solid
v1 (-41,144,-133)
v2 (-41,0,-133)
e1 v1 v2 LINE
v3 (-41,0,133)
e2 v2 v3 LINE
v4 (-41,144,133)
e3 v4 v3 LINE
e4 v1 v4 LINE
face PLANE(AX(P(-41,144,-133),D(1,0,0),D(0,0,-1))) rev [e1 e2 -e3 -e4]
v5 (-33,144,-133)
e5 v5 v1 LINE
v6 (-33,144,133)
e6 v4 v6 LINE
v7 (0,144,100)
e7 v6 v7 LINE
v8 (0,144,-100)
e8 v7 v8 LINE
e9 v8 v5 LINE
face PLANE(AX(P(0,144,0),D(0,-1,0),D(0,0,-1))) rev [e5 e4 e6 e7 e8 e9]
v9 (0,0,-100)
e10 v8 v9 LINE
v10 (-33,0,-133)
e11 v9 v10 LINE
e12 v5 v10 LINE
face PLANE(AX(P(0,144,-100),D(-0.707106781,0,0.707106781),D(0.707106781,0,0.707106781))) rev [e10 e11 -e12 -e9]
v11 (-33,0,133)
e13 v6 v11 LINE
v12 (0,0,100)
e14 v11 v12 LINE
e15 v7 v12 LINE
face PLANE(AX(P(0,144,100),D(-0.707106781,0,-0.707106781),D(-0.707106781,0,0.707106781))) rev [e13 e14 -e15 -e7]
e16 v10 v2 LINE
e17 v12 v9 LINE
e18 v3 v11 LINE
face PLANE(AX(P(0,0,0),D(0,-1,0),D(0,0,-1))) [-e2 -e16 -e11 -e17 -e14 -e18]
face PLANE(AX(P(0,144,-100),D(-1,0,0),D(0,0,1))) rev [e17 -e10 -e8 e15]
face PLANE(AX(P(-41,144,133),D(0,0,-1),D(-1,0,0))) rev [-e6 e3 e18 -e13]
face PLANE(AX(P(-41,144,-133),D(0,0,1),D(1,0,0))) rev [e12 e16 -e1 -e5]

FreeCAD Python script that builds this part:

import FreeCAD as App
import Part
import Sketcher

V = App.Vector


def add_polygon(sketch, points):
    """Adds a closed chain of lines whose ends are joined by coincident constraints."""
    first, n = sketch.GeometryCount, len(points)
    for a, b in zip(points, points[1:] + points[:1]):
        sketch.addGeometry(Part.LineSegment(App.Vector(*a, 0), App.Vector(*b, 0)), False)
    for i in range(n):
        sketch.addConstraint(Sketcher.Constraint("Coincident", first + i, 2, first + (i + 1) % n, 1))

doc = App.newDocument("Part")
body = doc.addObject("PartDesign::Body", "Body")

sketch1 = doc.addObject("Sketcher::SketchObject", "Sketch")
body.addObject(sketch1)
sketch1.AttachmentSupport = (doc.XZ_Plane, [""])
sketch1.MapMode = "FlatFace"
add_polygon(sketch1, [(-33, 133), (0, 100), (0, -100), (-33, -133), (-41, -133), (-41, 133)])
sketch1.addConstraint([
    Sketcher.Constraint("Vertical", 1),
    Sketcher.Constraint("Horizontal", 3),
    Sketcher.Constraint("Vertical", 4),
    Sketcher.Constraint("Horizontal", 5),
    Sketcher.Constraint("Symmetric", 0, 2, 1, 2, -1, 1),
    Sketcher.Constraint("Symmetric", 2, 2, 5, 2, -1),
    Sketcher.Constraint("Perpendicular", 0, 2),
    Sketcher.Constraint("DistanceX", 3, 2, 3, 1, 8.0),
    Sketcher.Constraint("DistanceY", 1, 2, 1, 1, 200.0),
    Sketcher.Constraint("DistanceY", 4, 1, 4, 2, 266.0),
])
pad1 = doc.addObject("PartDesign::Pad", "Pad")
body.addObject(pad1)
pad1.Profile = sketch1
pad1.Length = 144
pad1.Reversed = True

doc.recompute()
